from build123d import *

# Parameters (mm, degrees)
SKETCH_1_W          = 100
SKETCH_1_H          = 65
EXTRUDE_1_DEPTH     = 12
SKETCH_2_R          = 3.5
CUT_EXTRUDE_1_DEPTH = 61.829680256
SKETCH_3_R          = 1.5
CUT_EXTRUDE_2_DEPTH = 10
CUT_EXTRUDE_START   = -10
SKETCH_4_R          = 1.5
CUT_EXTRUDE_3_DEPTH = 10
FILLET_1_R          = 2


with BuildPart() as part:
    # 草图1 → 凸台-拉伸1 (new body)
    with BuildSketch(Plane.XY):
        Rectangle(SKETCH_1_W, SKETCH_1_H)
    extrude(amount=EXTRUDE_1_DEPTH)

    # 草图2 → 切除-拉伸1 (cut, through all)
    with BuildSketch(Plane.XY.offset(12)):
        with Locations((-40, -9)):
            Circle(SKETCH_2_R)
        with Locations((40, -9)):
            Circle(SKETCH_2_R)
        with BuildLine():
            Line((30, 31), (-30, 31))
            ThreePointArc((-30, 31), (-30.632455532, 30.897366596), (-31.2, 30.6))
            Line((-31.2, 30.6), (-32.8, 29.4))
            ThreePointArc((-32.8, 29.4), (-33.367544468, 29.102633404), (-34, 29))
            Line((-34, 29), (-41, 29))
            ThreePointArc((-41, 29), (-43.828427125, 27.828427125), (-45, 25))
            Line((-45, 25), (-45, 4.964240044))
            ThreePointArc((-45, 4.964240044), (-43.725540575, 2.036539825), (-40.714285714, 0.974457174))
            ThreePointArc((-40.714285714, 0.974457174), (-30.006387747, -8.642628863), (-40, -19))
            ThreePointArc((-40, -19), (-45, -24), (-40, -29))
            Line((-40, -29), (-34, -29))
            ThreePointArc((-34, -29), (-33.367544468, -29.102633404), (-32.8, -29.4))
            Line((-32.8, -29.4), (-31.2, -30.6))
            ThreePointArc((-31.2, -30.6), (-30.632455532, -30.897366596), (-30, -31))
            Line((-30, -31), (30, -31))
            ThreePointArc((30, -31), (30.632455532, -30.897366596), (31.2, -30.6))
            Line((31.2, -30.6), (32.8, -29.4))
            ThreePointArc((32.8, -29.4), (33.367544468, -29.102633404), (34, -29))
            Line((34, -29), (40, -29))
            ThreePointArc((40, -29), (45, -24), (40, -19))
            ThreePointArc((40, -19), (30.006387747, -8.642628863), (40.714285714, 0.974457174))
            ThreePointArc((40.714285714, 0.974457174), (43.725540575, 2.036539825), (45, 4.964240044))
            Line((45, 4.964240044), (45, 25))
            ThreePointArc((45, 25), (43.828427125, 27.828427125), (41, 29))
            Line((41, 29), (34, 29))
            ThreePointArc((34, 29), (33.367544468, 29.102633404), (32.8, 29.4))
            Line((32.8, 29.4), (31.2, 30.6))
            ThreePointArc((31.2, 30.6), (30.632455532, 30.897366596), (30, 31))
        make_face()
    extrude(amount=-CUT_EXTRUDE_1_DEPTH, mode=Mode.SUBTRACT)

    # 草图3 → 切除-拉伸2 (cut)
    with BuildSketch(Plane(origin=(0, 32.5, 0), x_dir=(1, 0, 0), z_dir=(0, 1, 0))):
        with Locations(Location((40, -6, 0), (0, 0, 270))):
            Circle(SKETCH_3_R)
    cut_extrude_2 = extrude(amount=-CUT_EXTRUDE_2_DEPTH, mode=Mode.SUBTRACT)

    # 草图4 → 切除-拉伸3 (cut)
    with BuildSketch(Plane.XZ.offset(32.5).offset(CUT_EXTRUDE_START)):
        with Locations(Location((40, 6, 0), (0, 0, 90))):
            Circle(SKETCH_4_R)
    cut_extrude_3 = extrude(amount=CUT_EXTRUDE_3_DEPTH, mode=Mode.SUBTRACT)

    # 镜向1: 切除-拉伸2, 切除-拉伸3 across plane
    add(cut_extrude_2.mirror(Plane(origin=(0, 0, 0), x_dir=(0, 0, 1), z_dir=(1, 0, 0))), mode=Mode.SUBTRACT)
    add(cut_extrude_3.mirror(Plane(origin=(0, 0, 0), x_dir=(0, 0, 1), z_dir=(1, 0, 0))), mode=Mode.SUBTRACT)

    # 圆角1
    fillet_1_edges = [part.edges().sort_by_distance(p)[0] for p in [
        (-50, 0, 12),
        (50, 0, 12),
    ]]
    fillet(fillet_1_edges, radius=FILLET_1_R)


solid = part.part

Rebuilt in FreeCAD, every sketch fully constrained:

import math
import FreeCAD as App
import Part
import Sketcher
from FreeCAD import Vector


def edges_at(feature, points):
    """Names of the edges that pass closest to the given points."""
    edges = feature.Shape.Edges
    near = lambda p: min(range(len(edges)), key=lambda i: edges[i].distToShape(Part.Vertex(*p))[0])
    return sorted({f"Edge{near(p) + 1}" for p in points})

doc = App.newDocument("Part")
params = doc.addObject("Spreadsheet::Sheet", "Params")
for row, (alias, value) in enumerate([
    ("sketch1_width", "100 mm"),
    ("sketch1_height", "65 mm"),
    ("pad1_length", "12 mm"),
    ("sketch2_diameter", "7 mm"),
    ("sketch2_radius", "2 mm"),
    ("sketch2_radius2", "4 mm"),
    ("sketch2_radius3", "10 mm"),
    ("sketch2_radius4", "5 mm"),
    ("sketch3_diameter", "3 mm"),
    ("pocket2_length", "10 mm"),
    ("sketch4_diameter", "3 mm"),
    ("pocket3_length", "10 mm"),
    ("fillet_radius", "2 mm"),
], start=1):
    params.set(f"A{row}", alias)
    params.set(f"B{row}", "=" + value)
    params.setAlias(f"B{row}", alias)

body = doc.addObject("PartDesign::Body", "Body")

sketch1 = body.newObject("Sketcher::SketchObject", "Sketch")
sketch1.AttachmentSupport = (doc.getObject("XY_Plane"), [""])
sketch1.MapMode = "FlatFace"
sketch1.addGeometry(Part.LineSegment(Vector(-50, 32.5, 0), Vector(-50, -32.5, 0)), False)
sketch1.addGeometry(Part.LineSegment(Vector(-50, -32.5, 0), Vector(50, -32.5, 0)), False)
sketch1.addGeometry(Part.LineSegment(Vector(50, -32.5, 0), Vector(50, 32.5, 0)), False)
sketch1.addGeometry(Part.LineSegment(Vector(50, 32.5, 0), Vector(-50, 32.5, 0)), False)
sketch1.addConstraint(Sketcher.Constraint("Coincident", 0, 2, 1, 1))
sketch1.addConstraint(Sketcher.Constraint("Coincident", 1, 2, 2, 1))
sketch1.addConstraint(Sketcher.Constraint("Coincident", 2, 2, 3, 1))
sketch1.addConstraint(Sketcher.Constraint("Coincident", 3, 2, 0, 1))
sketch1.addConstraint(Sketcher.Constraint("Vertical", 0))
sketch1.addConstraint(Sketcher.Constraint("Horizontal", 1))
sketch1.addConstraint(Sketcher.Constraint("Vertical", 2))
sketch1.addConstraint(Sketcher.Constraint("Horizontal", 3))
sketch1.addConstraint(Sketcher.Constraint("Symmetric", 0, 2, 2, 2, -1, 1))
sketch1.addConstraint(Sketcher.Constraint("DistanceX", 1, 1, 1, 2, 100.0))
sketch1.addConstraint(Sketcher.Constraint("DistanceY", 0, 2, 0, 1, 65.0))
sketch1.setExpression("Constraints[9]", "Params.sketch1_width")
sketch1.setExpression("Constraints[10]", "Params.sketch1_height")
pad1 = body.newObject("PartDesign::Pad", "Pad")
pad1.Profile = sketch1
pad1.setExpression("Length", "Params.pad1_length")

sketch2 = body.newObject("Sketcher::SketchObject", "Sketch001")
sketch2.AttachmentSupport = (doc.getObject("XY_Plane"), [""])
sketch2.MapMode = "FlatFace"
sketch2.AttachmentOffset = App.Placement(Vector(0, 0, 12), App.Rotation())
sketch2.addGeometry(Part.Circle(Vector(-40, -9, 0), Vector(0, 0, 1), 3.5), False)
sketch2.addGeometry(Part.Circle(Vector(40, -9, 0), Vector(0, 0, 1), 3.5), False)
sketch2.addGeometry(Part.LineSegment(Vector(30, 31, 0), Vector(-30, 31, 0)), False)
sketch2.addGeometry(Part.ArcOfCircle(Part.Circle(Vector(-30, 29, 0), Vector(0, 0, 1), 2), math.radians(90), math.radians(126.869898)), False)
sketch2.addGeometry(Part.LineSegment(Vector(-31.2, 30.6, 0), Vector(-32.8, 29.4, 0)), False)
sketch2.addGeometry(Part.ArcOfCircle(Part.Circle(Vector(-34, 31, 0), Vector(0, 0, 1), 2), math.radians(-90), math.radians(-53.130102)), False)
sketch2.addGeometry(Part.LineSegment(Vector(-34, 29, 0), Vector(-41, 29, 0)), False)
sketch2.addGeometry(Part.ArcOfCircle(Part.Circle(Vector(-41, 25, 0), Vector(0, 0, 1), 4), math.radians(90), math.radians(180)), False)
sketch2.addGeometry(Part.LineSegment(Vector(-45, 25, 0), Vector(-45, 4.96424, 0)), False)
sketch2.addGeometry(Part.ArcOfCircle(Part.Circle(Vector(-41, 4.96424, 0), Vector(0, 0, 1), 4), math.radians(-180), math.radians(-85.903956)), False)
sketch2.addGeometry(Part.ArcOfCircle(Part.Circle(Vector(-40, -9, 0), Vector(0, 0, 1), 10), math.radians(-90), math.radians(94.096044)), False)
sketch2.addGeometry(Part.ArcOfCircle(Part.Circle(Vector(-40, -24, 0), Vector(0, 0, 1), 5), math.radians(90), math.radians(270)), False)
sketch2.addGeometry(Part.LineSegment(Vector(-40, -29, 0), Vector(-34, -29, 0)), False)
sketch2.addGeometry(Part.ArcOfCircle(Part.Circle(Vector(-34, -31, 0), Vector(0, 0, 1), 2), math.radians(53.130102), math.radians(90)), False)
sketch2.addGeometry(Part.LineSegment(Vector(-32.8, -29.4, 0), Vector(-31.2, -30.6, 0)), False)
sketch2.addGeometry(Part.ArcOfCircle(Part.Circle(Vector(-30, -29, 0), Vector(0, 0, 1), 2), math.radians(-126.869898), math.radians(-90)), False)
sketch2.addGeometry(Part.LineSegment(Vector(-30, -31, 0), Vector(30, -31, 0)), False)
sketch2.addGeometry(Part.ArcOfCircle(Part.Circle(Vector(30, -29, 0), Vector(0, 0, 1), 2), math.radians(-90), math.radians(-53.130102)), False)
sketch2.addGeometry(Part.LineSegment(Vector(31.2, -30.6, 0), Vector(32.8, -29.4, 0)), False)
sketch2.addGeometry(Part.ArcOfCircle(Part.Circle(Vector(34, -31, 0), Vector(0, 0, 1), 2), math.radians(90), math.radians(126.869898)), False)
sketch2.addGeometry(Part.LineSegment(Vector(34, -29, 0), Vector(40, -29, 0)), False)
sketch2.addGeometry(Part.ArcOfCircle(Part.Circle(Vector(40, -24, 0), Vector(0, 0, 1), 5), math.radians(-90), math.radians(90)), False)
sketch2.addGeometry(Part.ArcOfCircle(Part.Circle(Vector(40, -9, 0), Vector(0, 0, 1), 10), math.radians(85.903956), math.radians(270)), False)
sketch2.addGeometry(Part.ArcOfCircle(Part.Circle(Vector(41, 4.96424, 0), Vector(0, 0, 1), 4), math.radians(-94.096044), math.radians(0)), False)
sketch2.addGeometry(Part.LineSegment(Vector(45, 4.96424, 0), Vector(45, 25, 0)), False)
sketch2.addGeometry(Part.ArcOfCircle(Part.Circle(Vector(41, 25, 0), Vector(0, 0, 1), 4), math.radians(0), math.radians(90)), False)
sketch2.addGeometry(Part.LineSegment(Vector(41, 29, 0), Vector(34, 29, 0)), False)
sketch2.addGeometry(Part.ArcOfCircle(Part.Circle(Vector(34, 31, 0), Vector(0, 0, 1), 2), math.radians(-126.869898), math.radians(-90)), False)
sketch2.addGeometry(Part.LineSegment(Vector(32.8, 29.4, 0), Vector(31.2, 30.6, 0)), False)
sketch2.addGeometry(Part.ArcOfCircle(Part.Circle(Vector(30, 29, 0), Vector(0, 0, 1), 2), math.radians(53.130102), math.radians(90)), False)
sketch2.addConstraint(Sketcher.Constraint("Tangent", 2, 2, 3, 1))
sketch2.addConstraint(Sketcher.Constraint("Tangent", 3, 2, 4, 1))
sketch2.addConstraint(Sketcher.Constraint("Tangent", 4, 2, 5, 2))
sketch2.addConstraint(Sketcher.Constraint("Tangent", 5, 1, 6, 1))
sketch2.addConstraint(Sketcher.Constraint("Tangent", 6, 2, 7, 1))
sketch2.addConstraint(Sketcher.Constraint("Tangent", 7, 2, 8, 1))
sketch2.addConstraint(Sketcher.Constraint("Tangent", 8, 2, 9, 1))
sketch2.addConstraint(Sketcher.Constraint("Tangent", 9, 2, 10, 2))
sketch2.addConstraint(Sketcher.Constraint("Tangent", 10, 1, 11, 1))
sketch2.addConstraint(Sketcher.Constraint("Tangent", 11, 2, 12, 1))
sketch2.addConstraint(Sketcher.Constraint("Tangent", 12, 2, 13, 2))
sketch2.addConstraint(Sketcher.Constraint("Tangent", 13, 1, 14, 1))
sketch2.addConstraint(Sketcher.Constraint("Tangent", 14, 2, 15, 1))
sketch2.addConstraint(Sketcher.Constraint("Tangent", 15, 2, 16, 1))
sketch2.addConstraint(Sketcher.Constraint("Tangent", 16, 2, 17, 1))
sketch2.addConstraint(Sketcher.Constraint("Tangent", 17, 2, 18, 1))
sketch2.addConstraint(Sketcher.Constraint("Tangent", 18, 2, 19, 2))
sketch2.addConstraint(Sketcher.Constraint("Tangent", 19, 1, 20, 1))
sketch2.addConstraint(Sketcher.Constraint("Tangent", 20, 2, 21, 1))
sketch2.addConstraint(Sketcher.Constraint("Tangent", 21, 2, 22, 2))
sketch2.addConstraint(Sketcher.Constraint("Tangent", 22, 1, 23, 1))
sketch2.addConstraint(Sketcher.Constraint("Tangent", 23, 2, 24, 1))
sketch2.addConstraint(Sketcher.Constraint("Tangent", 24, 2, 25, 1))
sketch2.addConstraint(Sketcher.Constraint("Tangent", 25, 2, 26, 1))
sketch2.addConstraint(Sketcher.Constraint("Tangent", 26, 2, 27, 2))
sketch2.addConstraint(Sketcher.Constraint("Tangent", 27, 1, 28, 1))
sketch2.addConstraint(Sketcher.Constraint("Tangent", 28, 2, 29, 1))
sketch2.addConstraint(Sketcher.Constraint("Tangent", 29, 2, 2, 1))
sketch2.addConstraint(Sketcher.Constraint("Horizontal", 2))
sketch2.addConstraint(Sketcher.Constraint("Horizontal", 6))
sketch2.addConstraint(Sketcher.Constraint("Vertical", 8))
sketch2.addConstraint(Sketcher.Constraint("Horizontal", 12))
sketch2.addConstraint(Sketcher.Constraint("Horizontal", 16))
sketch2.addConstraint(Sketcher.Constraint("Horizontal", 20))
sketch2.addConstraint(Sketcher.Constraint("Vertical", 24))
sketch2.addConstraint(Sketcher.Constraint("Horizontal", 26))
sketch2.addConstraint(Sketcher.Constraint("Coincident", 10, 3, 0, 3))
sketch2.addConstraint(Sketcher.Constraint("Coincident", 22, 3, 1, 3))
sketch2.addConstraint(Sketcher.Constraint("Equal", 0, 1))
sketch2.addConstraint(Sketcher.Constraint("Equal", 3, 5))
sketch2.addConstraint(Sketcher.Constraint("Equal", 7, 9))
sketch2.addConstraint(Sketcher.Constraint("Equal", 5, 13))
sketch2.addConstraint(Sketcher.Constraint("Equal", 13, 15))
sketch2.addConstraint(Sketcher.Constraint("Equal", 15, 17))
sketch2.addConstraint(Sketcher.Constraint("Equal", 17, 19))
sketch2.addConstraint(Sketcher.Constraint("Equal", 11, 21))
sketch2.addConstraint(Sketcher.Constraint("Equal", 10, 22))
sketch2.addConstraint(Sketcher.Constraint("Equal", 9, 23))
sketch2.addConstraint(Sketcher.Constraint("Equal", 23, 25))
sketch2.addConstraint(Sketcher.Constraint("Equal", 19, 27))
sketch2.addConstraint(Sketcher.Constraint("Equal", 27, 29))
sketch2.addConstraint(Sketcher.Constraint("Symmetric", 3, 3, 17, 3, -1, 1))
sketch2.addConstraint(Sketcher.Constraint("Symmetric", 5, 3, 19, 3, -1, 1))
sketch2.addConstraint(Sketcher.Constraint("Symmetric", 13, 3, 27, 3, -1, 1))
sketch2.addConstraint(Sketcher.Constraint("Symmetric", 0, 3, 1, 3, -2))
sketch2.addConstraint(Sketcher.Constraint("Symmetric", 14, 2, 17, 2, -2))
sketch2.addConstraint(Sketcher.Constraint("Parallel", 14, 28))
sketch2.addConstraint(Sketcher.Constraint("Horizontal", 9, 3, 23, 3))
sketch2.addConstraint(Sketcher.Constraint("Horizontal", 27, 3, 2, 2))
sketch2.addConstraint(Sketcher.Constraint("Vertical", 10, 3, 11, 3))
sketch2.addConstraint(Sketcher.Constraint("Vertical", 1, 3, 21, 3))
sketch2.addConstraint(Sketcher.Constraint("Diameter", 0, 7.0))
sketch2.addConstraint(Sketcher.Constraint("Radius", 3, 2.0))
sketch2.addConstraint(Sketcher.Constraint("Radius", 7, 4.0))
sketch2.addConstraint(Sketcher.Constraint("Radius", 10, 10.0))
sketch2.addConstraint(Sketcher.Constraint("Radius", 11, 5.0))
sketch2.addConstraint(Sketcher.Constraint("DistanceX", 2, 2, 2, 1, 60.0))
sketch2.addConstraint(Sketcher.Constraint("DistanceX", 6, 2, 6, 1, 7.0))
sketch2.addConstraint(Sketcher.Constraint("DistanceX", 12, 1, 12, 2, 6.0))
sketch2.addConstraint(Sketcher.Constraint("Distance", 4, 2.0))
sketch2.addConstraint(Sketcher.Constraint("DistanceY", 0, 3, -1, 1, 9.0))
sketch2.setExpression("Constraints[61]", "Params.sketch2_diameter")
sketch2.setExpression("Constraints[62]", "Params.sketch2_radius")
sketch2.setExpression("Constraints[63]", "Params.sketch2_radius2")
sketch2.setExpression("Constraints[64]", "Params.sketch2_radius3")
sketch2.setExpression("Constraints[65]", "Params.sketch2_radius4")
pocket1 = body.newObject("PartDesign::Pocket", "Pocket")
pocket1.Profile = sketch2
pocket1.Type = "ThroughAll"

sketch3 = body.newObject("Sketcher::SketchObject", "Sketch002")
sketch3.AttachmentSupport = (doc.getObject("XZ_Plane"), [""])
sketch3.MapMode = "FlatFace"
sketch3.AttachmentOffset = App.Placement(Vector(0, 0, -32.5), App.Rotation())
sketch3.addGeometry(Part.Circle(Vector(40, 6, 0), Vector(0, 0, 1), 1.5), False)
sketch3.addConstraint(Sketcher.Constraint("Diameter", 0, 3.0))
sketch3.addConstraint(Sketcher.Constraint("DistanceX", -1, 1, 0, 3, 40.0))
sketch3.addConstraint(Sketcher.Constraint("DistanceY", -1, 1, 0, 3, 6.0))
sketch3.setExpression("Constraints[0]", "Params.sketch3_diameter")
pocket2 = body.newObject("PartDesign::Pocket", "Pocket001")
pocket2.Profile = sketch3
pocket2.setExpression("Length", "Params.pocket2_length")
pocket2.Reversed = True

sketch4 = body.newObject("Sketcher::SketchObject", "Sketch003")
sketch4.AttachmentSupport = (doc.getObject("XZ_Plane"), [""])
sketch4.MapMode = "FlatFace"
sketch4.AttachmentOffset = App.Placement(Vector(0, 0, 22.5), App.Rotation())
sketch4.addGeometry(Part.Circle(Vector(40, 6, 0), Vector(0, 0, 1), 1.5), False)
sketch4.addConstraint(Sketcher.Constraint("Diameter", 0, 3.0))
sketch4.addConstraint(Sketcher.Constraint("DistanceX", -1, 1, 0, 3, 40.0))
sketch4.addConstraint(Sketcher.Constraint("DistanceY", -1, 1, 0, 3, 6.0))
sketch4.setExpression("Constraints[0]", "Params.sketch4_diameter")
pocket3 = body.newObject("PartDesign::Pocket", "Pocket002")
pocket3.Profile = sketch4
pocket3.setExpression("Length", "Params.pocket3_length")
pocket3.Reversed = True
doc.recompute()

mirrored = body.newObject("PartDesign::Mirrored", "Mirrored")
mirrored.Originals = [pocket2, pocket3]
mirrored.MirrorPlane = (doc.getObject("YZ_Plane"), [""])
body.Tip = mirrored
doc.recompute()

fillet = body.newObject("PartDesign::Fillet", "Fillet")
fillet.Base = (mirrored, edges_at(mirrored, [(-50, 0, 12), (50, 0, 12)]))
fillet.setExpression("Radius", "Params.fillet_radius")

doc.recompute()
